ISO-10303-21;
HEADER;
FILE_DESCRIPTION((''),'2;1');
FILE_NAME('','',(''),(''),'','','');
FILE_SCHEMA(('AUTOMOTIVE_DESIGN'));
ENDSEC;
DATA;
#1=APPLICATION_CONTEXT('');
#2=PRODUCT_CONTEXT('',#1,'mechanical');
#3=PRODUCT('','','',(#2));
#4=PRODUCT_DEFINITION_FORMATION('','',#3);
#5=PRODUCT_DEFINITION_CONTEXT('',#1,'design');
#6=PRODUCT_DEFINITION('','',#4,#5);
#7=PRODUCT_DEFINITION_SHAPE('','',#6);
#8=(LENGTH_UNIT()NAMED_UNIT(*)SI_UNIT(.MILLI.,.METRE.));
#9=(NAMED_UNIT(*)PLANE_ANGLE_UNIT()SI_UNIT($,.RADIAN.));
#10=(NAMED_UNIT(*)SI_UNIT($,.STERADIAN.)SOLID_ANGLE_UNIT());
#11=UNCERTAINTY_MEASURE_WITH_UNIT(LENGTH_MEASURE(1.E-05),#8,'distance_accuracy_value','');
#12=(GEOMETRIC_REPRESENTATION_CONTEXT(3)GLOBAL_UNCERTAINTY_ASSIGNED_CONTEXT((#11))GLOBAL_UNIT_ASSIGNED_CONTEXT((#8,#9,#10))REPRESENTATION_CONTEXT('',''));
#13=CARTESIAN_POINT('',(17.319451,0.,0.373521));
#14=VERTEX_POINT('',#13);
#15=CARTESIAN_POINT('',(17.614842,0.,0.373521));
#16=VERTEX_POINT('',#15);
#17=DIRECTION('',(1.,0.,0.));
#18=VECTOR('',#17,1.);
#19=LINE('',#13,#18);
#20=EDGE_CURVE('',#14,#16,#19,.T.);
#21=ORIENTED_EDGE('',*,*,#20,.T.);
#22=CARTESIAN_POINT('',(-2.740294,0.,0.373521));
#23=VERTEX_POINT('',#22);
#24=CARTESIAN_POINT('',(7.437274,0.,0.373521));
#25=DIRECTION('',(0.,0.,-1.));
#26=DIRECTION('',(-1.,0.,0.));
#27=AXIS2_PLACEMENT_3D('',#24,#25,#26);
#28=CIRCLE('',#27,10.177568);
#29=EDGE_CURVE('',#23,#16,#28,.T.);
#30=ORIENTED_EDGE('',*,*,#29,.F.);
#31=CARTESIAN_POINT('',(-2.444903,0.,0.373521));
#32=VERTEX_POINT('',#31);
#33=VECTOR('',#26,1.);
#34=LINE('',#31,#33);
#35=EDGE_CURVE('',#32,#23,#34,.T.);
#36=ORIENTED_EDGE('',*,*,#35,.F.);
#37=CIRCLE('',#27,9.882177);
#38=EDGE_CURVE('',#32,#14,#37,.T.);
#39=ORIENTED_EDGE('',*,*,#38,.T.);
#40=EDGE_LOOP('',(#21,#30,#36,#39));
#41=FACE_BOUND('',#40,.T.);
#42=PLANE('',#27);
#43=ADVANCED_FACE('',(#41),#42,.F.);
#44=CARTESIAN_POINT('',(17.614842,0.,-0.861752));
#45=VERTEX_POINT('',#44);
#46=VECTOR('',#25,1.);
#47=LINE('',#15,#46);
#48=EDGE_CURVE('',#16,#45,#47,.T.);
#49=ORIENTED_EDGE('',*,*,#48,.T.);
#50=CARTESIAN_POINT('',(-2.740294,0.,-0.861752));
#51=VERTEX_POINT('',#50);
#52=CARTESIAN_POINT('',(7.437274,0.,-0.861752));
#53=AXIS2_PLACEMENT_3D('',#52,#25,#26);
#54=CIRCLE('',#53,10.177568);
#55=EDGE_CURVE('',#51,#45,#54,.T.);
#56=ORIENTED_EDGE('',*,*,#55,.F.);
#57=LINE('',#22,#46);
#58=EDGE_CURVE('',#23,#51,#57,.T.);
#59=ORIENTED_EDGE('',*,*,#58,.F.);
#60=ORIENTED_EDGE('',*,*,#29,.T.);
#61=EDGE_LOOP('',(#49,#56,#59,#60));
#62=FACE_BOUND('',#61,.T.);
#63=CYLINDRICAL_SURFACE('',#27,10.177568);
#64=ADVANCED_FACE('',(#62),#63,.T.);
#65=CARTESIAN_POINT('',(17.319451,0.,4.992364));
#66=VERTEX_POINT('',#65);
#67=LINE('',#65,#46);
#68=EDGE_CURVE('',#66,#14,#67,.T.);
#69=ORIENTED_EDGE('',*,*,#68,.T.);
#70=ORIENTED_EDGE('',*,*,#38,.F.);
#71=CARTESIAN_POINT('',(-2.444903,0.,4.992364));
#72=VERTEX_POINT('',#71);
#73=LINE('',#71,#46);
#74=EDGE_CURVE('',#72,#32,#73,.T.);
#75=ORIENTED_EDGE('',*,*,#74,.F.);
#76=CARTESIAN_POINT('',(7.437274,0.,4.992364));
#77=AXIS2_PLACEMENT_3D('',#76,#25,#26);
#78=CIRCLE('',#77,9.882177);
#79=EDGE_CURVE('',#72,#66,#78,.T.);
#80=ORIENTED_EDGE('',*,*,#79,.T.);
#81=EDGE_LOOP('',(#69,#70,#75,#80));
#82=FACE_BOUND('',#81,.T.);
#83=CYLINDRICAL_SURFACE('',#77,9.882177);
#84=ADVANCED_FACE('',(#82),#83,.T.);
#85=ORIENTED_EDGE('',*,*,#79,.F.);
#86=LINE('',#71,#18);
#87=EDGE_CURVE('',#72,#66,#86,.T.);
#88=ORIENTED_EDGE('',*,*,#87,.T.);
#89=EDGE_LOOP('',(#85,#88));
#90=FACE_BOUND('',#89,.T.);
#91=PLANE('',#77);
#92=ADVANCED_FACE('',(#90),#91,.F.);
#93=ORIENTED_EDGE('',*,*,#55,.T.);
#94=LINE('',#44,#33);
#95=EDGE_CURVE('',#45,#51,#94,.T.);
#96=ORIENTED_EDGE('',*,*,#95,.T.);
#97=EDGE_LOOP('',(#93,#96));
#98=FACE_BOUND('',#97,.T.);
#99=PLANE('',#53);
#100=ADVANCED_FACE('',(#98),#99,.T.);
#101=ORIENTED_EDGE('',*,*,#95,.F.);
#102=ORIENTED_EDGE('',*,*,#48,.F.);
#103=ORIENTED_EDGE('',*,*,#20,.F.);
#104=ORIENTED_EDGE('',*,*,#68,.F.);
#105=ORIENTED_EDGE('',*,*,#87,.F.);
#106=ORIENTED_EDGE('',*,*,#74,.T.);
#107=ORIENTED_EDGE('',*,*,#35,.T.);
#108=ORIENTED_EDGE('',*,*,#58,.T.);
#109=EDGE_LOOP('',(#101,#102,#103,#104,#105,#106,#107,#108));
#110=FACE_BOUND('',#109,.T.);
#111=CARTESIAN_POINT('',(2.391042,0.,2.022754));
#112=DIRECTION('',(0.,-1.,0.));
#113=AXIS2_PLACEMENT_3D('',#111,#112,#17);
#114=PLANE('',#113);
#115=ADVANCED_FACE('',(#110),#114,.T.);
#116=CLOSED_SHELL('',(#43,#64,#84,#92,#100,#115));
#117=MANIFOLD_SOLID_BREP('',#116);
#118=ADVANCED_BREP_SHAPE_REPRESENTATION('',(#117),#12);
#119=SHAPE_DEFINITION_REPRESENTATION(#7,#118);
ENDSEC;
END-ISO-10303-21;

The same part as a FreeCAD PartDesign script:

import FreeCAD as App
import Part
import Sketcher
Q = App.Units.Quantity

doc = App.newDocument("Part")
body = doc.addObject("PartDesign::Body", "Body")

# Sketch on XZ plane
sketch1 = body.newObject("Sketcher::SketchObject", "Sketch")
sketch1.AttachmentSupport = (doc.getObject("XZ_Plane"), [""])
sketch1.MapMode = "FlatFace"
sketch1.addGeometry([
    Part.LineSegment(App.Vector(-2.740294, -0.861752, 0), App.Vector(7.437274, -0.861752, 0)),  # 0
    Part.LineSegment(App.Vector(7.437274, -0.861752, 0), App.Vector(7.437274, 4.992364, 0)),  # 1
    Part.LineSegment(App.Vector(7.437274, 4.992364, 0), App.Vector(-2.444903, 4.992364, 0)),  # 2
    Part.LineSegment(App.Vector(-2.444903, 4.992364, 0), App.Vector(-2.444903, 0.373521, 0)),  # 3
    Part.LineSegment(App.Vector(-2.444903, 0.373521, 0), App.Vector(-2.740294, 0.373521, 0)),  # 4
    Part.LineSegment(App.Vector(-2.740294, 0.373521, 0), App.Vector(-2.740294, -0.861752, 0)),  # 5
], False)
sketch1.addGeometry(Part.LineSegment(App.Vector(7.437274, 4.992364, 0), App.Vector(7.437274, -0.861752, 0)), True)  # axis
sketch1.addConstraint([
    Sketcher.Constraint("Coincident", 0, 2, 1, 1),
    Sketcher.Constraint("Coincident", 1, 2, 2, 1),
    Sketcher.Constraint("Coincident", 2, 2, 3, 1),
    Sketcher.Constraint("Coincident", 3, 2, 4, 1),
    Sketcher.Constraint("Coincident", 4, 2, 5, 1),
    Sketcher.Constraint("Coincident", 5, 2, 0, 1),
    Sketcher.Constraint("Horizontal", 0),
    Sketcher.Constraint("Vertical", 1),
    Sketcher.Constraint("Horizontal", 2),
    Sketcher.Constraint("Vertical", 3),
    Sketcher.Constraint("Horizontal", 4),
    Sketcher.Constraint("Vertical", 5),
    Sketcher.Constraint("Vertical", 6),
    Sketcher.Constraint("Coincident", 6, 1, 1, 2),
    Sketcher.Constraint("Horizontal", 5, 2, 6, 2),
    Sketcher.Constraint("DistanceX", 0, 1, 0, 2, Q("10.177568 mm")),
    Sketcher.Constraint("DistanceX", 4, 2, 4, 1, Q("0.295391 mm")),
    Sketcher.Constraint("DistanceY", 1, 1, 1, 2, Q("5.854116 mm")),
    Sketcher.Constraint("DistanceY", 3, 2, 3, 1, Q("4.618843 mm")),
    Sketcher.Constraint("DistanceY", 0, 2, -1, 1, Q("0.861752 mm")),
    Sketcher.Constraint("DistanceX", -1, 1, 0, 2, Q("7.437274 mm")),
])
revolution = body.newObject("PartDesign::Revolution", "Revolution")
revolution.Profile = sketch1
revolution.ReferenceAxis = (sketch1, ["Axis0"])
revolution.Angle = 180

doc.recompute()
